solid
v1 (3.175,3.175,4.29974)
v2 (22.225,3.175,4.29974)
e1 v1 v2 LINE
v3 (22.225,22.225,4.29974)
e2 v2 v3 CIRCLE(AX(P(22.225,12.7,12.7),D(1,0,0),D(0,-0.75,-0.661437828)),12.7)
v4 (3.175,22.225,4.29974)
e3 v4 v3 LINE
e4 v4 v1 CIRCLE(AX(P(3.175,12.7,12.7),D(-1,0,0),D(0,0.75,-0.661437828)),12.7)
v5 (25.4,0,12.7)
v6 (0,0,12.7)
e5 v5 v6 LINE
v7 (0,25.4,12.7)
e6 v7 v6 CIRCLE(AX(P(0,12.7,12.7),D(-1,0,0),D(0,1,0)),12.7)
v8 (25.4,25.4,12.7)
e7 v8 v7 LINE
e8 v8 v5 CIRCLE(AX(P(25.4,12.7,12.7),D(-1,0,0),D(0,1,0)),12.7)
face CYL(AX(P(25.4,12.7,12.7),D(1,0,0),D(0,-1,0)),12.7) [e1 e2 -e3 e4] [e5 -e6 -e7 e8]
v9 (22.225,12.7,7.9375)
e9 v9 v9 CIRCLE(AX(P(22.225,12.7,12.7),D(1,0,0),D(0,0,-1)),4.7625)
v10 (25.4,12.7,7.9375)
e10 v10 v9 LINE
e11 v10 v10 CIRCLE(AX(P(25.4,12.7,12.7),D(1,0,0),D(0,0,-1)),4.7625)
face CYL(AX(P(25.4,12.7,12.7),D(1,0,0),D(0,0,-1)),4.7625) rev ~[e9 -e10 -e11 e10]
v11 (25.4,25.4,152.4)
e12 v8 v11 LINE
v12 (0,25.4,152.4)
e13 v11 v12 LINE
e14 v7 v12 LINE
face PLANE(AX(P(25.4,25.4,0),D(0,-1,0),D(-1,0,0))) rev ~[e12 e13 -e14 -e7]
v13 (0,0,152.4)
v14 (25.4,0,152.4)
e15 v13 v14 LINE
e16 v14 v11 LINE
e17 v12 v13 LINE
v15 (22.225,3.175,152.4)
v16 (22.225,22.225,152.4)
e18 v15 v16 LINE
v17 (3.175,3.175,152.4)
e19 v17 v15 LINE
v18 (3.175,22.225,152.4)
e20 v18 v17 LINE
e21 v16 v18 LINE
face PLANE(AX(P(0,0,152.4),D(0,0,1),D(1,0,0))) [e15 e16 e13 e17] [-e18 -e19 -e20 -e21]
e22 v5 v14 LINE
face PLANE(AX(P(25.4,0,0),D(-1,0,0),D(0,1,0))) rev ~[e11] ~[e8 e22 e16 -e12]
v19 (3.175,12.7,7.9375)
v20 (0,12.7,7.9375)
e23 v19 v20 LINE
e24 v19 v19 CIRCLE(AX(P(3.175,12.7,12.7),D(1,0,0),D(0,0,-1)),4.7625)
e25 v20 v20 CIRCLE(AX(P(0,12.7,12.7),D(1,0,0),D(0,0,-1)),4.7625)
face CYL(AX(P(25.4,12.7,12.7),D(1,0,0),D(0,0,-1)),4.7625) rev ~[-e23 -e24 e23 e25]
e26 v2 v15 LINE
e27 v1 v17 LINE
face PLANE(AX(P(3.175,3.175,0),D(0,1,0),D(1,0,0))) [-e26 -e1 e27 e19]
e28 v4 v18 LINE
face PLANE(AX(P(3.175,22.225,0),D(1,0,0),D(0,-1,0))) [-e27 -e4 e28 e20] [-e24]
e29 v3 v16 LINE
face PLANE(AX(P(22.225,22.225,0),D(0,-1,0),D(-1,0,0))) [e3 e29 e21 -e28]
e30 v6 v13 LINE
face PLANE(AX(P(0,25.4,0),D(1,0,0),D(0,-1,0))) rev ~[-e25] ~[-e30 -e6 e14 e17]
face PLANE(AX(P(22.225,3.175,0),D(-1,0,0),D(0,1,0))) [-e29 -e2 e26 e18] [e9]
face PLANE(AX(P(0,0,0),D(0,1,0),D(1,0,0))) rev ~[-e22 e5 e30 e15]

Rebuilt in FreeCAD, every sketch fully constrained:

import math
import FreeCAD as App
import Part
import Sketcher
from FreeCAD import Vector
Q = App.Units.Quantity


def add_polygon(sketch, points):
    """Adds a closed chain of lines whose ends are joined by coincident constraints."""
    first, n = sketch.GeometryCount, len(points)
    for a, b in zip(points, points[1:] + points[:1]):
        sketch.addGeometry(Part.LineSegment(App.Vector(*a, 0), App.Vector(*b, 0)), False)
    for i in range(n):
        sketch.addConstraint(Sketcher.Constraint("Coincident", first + i, 2, first + (i + 1) % n, 1))

doc = App.newDocument("Part")
body = doc.addObject("PartDesign::Body", "Body")

sketch1 = body.newObject("Sketcher::SketchObject", "Sketch")
sketch1.AttachmentSupport = (doc.getObject("XY_Plane"), [""])
sketch1.MapMode = "FlatFace"
add_polygon(sketch1, [(0, 25), (0, 0), (25, 0), (25, 25)])
add_polygon(sketch1, [(22, 3), (3, 3), (3, 22), (22, 22)])
sketch1.addConstraint([
    Sketcher.Constraint("Vertical", 0),
    Sketcher.Constraint("Horizontal", 1),
    Sketcher.Constraint("Vertical", 2),
    Sketcher.Constraint("Horizontal", 3),
    Sketcher.Constraint("Horizontal", 4),
    Sketcher.Constraint("Vertical", 5),
    Sketcher.Constraint("Horizontal", 6),
    Sketcher.Constraint("Vertical", 7),
    Sketcher.Constraint("Coincident", 0, 2, -1, 1),
    Sketcher.Constraint("Equal", 3, 0),
    Sketcher.Constraint("Equal", 6, 5),
    Sketcher.Constraint("DistanceX", 1, 1, 1, 2, Q("1 in")),
    Sketcher.Constraint("DistanceX", -1, 1, 4, 2, Q("0.125 in")),
    Sketcher.Constraint("DistanceY", -1, 1, 4, 2, Q("0.125 in")),
    Sketcher.Constraint("DistanceY", 5, 2, 3, 2, Q("0.125 in")),
])
pad1 = body.newObject("PartDesign::Pad", "Pad")
pad1.Profile = sketch1
pad1.Length = Q("6 in")

sketch2 = body.newObject("Sketcher::SketchObject", "Sketch001")
sketch2.AttachmentSupport = (doc.getObject("YZ_Plane"), [""])
sketch2.MapMode = "FlatFace"
sketch2.AttachmentOffset = App.Placement(Vector(0, 0, 1 * 25.4), App.Rotation())
sketch2.addGeometry([
    Part.LineSegment(Vector(25.4, 0, 0), Vector(25.4, 12.7, 0)),
    Part.ArcOfCircle(Part.Circle(Vector(12.7, 12.7, 0), Vector(0, 0, 1), 12.7), math.radians(-90), math.radians(0)),
    Part.LineSegment(Vector(12.7, 0, 0), Vector(25.4, 0, 0)),
    Part.ArcOfCircle(Part.Circle(Vector(12.7, 12.7, 0), Vector(0, 0, 1), 12.7), math.radians(180), math.radians(270)),
    Part.LineSegment(Vector(0, 12.7, 0), Vector(0, 0, 0)),
    Part.LineSegment(Vector(0, 0, 0), Vector(12.7, 0, 0)),
    Part.Circle(Vector(12.7, 12.7, 0), Vector(0, 0, 1), 4.8),
], False)
sketch2.addConstraint([
    Sketcher.Constraint("Tangent", 0, 2, 1, 2),
    Sketcher.Constraint("Tangent", 1, 1, 2, 1),
    Sketcher.Constraint("Coincident", 2, 2, 0, 1),
    Sketcher.Constraint("Tangent", 3, 1, 4, 1),
    Sketcher.Constraint("Coincident", 4, 2, 5, 1),
    Sketcher.Constraint("Tangent", 5, 2, 3, 2),
    Sketcher.Constraint("Vertical", 0),
    Sketcher.Constraint("Horizontal", 2),
    Sketcher.Constraint("Vertical", 4),
    Sketcher.Constraint("Horizontal", 5),
    Sketcher.Constraint("Coincident", 4, 2, -1, 1),
    Sketcher.Constraint("Coincident", 3, 3, 1, 3),
    Sketcher.Constraint("Coincident", 6, 3, 1, 3),
    Sketcher.Constraint("Equal", 1, 3),
    Sketcher.Constraint("Radius", 1, Q("0.5 in")),
    Sketcher.Constraint("Diameter", 6, Q("0.375 in")),
])
pocket1 = body.newObject("PartDesign::Pocket", "Pocket")
pocket1.Profile = sketch2
pocket1.Length = Q("1 in")

doc.recompute()
